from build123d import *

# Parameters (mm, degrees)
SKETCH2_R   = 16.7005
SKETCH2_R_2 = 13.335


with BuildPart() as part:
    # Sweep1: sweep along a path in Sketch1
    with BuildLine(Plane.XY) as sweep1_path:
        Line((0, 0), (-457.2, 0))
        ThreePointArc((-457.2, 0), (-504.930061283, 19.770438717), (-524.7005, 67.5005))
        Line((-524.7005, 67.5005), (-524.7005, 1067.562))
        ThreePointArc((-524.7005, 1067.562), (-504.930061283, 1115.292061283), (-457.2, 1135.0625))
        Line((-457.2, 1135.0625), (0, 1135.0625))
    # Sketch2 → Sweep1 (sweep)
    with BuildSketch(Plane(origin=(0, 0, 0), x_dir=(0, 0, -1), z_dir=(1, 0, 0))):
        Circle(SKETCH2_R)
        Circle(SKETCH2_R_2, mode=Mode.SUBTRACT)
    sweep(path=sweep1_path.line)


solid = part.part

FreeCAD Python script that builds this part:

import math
import FreeCAD as App
import Part
import Sketcher
Q = App.Units.Quantity

doc = App.newDocument("Part")
body = doc.addObject("PartDesign::Body", "Body")

# Sketch on YZ plane
sketch1 = body.newObject("Sketcher::SketchObject", "Sketch")
sketch1.AttachmentSupport = (doc.getObject("YZ_Plane"), [""])
sketch1.MapMode = "FlatFace"
sketch1.addGeometry(Part.Circle(App.Vector(0, 0, 0), App.Vector(0, 0, 1), 17), False)
sketch1.addGeometry(Part.Circle(App.Vector(0, 0, 0), App.Vector(0, 0, 1), 13), False)
sketch1.addConstraint(Sketcher.Constraint("Coincident", 0, 3, -1, 1))
sketch1.addConstraint(Sketcher.Constraint("Coincident", 1, 3, -1, 1))
sketch1.addConstraint(Sketcher.Constraint("Diameter", 1, Q("1.05 in")))
sketch1.addConstraint(Sketcher.Constraint("Diameter", 0, Q("1.315 in")))

# Sketch on XY plane
sketch2 = body.newObject("Sketcher::SketchObject", "Sketch001")
sketch2.AttachmentSupport = (doc.getObject("XY_Plane"), [""])
sketch2.MapMode = "FlatFace"
sketch2.addGeometry(Part.LineSegment(App.Vector(0, 0, 0), App.Vector(-457, 0, 0)), False)
sketch2.addGeometry(Part.ArcOfCircle(Part.Circle(App.Vector(-457, 68, 0), App.Vector(0, 0, 1), 68), math.radians(-180), math.radians(-90)), False)
sketch2.addGeometry(Part.LineSegment(App.Vector(-525, 68, 0), App.Vector(-525, 1068, 0)), False)
sketch2.addGeometry(Part.ArcOfCircle(Part.Circle(App.Vector(-457, 1068, 0), App.Vector(0, 0, 1), 68), math.radians(90), math.radians(180)), False)
sketch2.addGeometry(Part.LineSegment(App.Vector(-457, 1135, 0), App.Vector(0, 1135, 0)), False)
sketch2.addConstraint(Sketcher.Constraint("Tangent", 0, 2, 1, 2))
sketch2.addConstraint(Sketcher.Constraint("Tangent", 1, 1, 2, 1))
sketch2.addConstraint(Sketcher.Constraint("Tangent", 2, 2, 3, 2))
sketch2.addConstraint(Sketcher.Constraint("Tangent", 3, 1, 4, 1))
sketch2.addConstraint(Sketcher.Constraint("Horizontal", 0))
sketch2.addConstraint(Sketcher.Constraint("Vertical", 2))
sketch2.addConstraint(Sketcher.Constraint("Horizontal", 4))
sketch2.addConstraint(Sketcher.Constraint("Coincident", 0, 1, -1, 1))
sketch2.addConstraint(Sketcher.Constraint("Equal", 1, 3))
sketch2.addConstraint(Sketcher.Constraint("PointOnObject", 4, 2, -2))
sketch2.addConstraint(Sketcher.Constraint("DistanceX", 0, 2, 0, 1, Q("18 in")))
sketch2.addConstraint(Sketcher.Constraint("Radius", 1, Q("2.6575 in")))
sketch2.addConstraint(Sketcher.Constraint("DistanceY", -1, 1, 3, 3, Q("42.03 in")))
doc.recompute()

additivepipe = body.newObject("PartDesign::AdditivePipe", "AdditivePipe")
additivepipe.Profile = sketch1
additivepipe.Spine = (sketch2, ["Edge1", "Edge2", "Edge3", "Edge4", "Edge5"])

doc.recompute()
